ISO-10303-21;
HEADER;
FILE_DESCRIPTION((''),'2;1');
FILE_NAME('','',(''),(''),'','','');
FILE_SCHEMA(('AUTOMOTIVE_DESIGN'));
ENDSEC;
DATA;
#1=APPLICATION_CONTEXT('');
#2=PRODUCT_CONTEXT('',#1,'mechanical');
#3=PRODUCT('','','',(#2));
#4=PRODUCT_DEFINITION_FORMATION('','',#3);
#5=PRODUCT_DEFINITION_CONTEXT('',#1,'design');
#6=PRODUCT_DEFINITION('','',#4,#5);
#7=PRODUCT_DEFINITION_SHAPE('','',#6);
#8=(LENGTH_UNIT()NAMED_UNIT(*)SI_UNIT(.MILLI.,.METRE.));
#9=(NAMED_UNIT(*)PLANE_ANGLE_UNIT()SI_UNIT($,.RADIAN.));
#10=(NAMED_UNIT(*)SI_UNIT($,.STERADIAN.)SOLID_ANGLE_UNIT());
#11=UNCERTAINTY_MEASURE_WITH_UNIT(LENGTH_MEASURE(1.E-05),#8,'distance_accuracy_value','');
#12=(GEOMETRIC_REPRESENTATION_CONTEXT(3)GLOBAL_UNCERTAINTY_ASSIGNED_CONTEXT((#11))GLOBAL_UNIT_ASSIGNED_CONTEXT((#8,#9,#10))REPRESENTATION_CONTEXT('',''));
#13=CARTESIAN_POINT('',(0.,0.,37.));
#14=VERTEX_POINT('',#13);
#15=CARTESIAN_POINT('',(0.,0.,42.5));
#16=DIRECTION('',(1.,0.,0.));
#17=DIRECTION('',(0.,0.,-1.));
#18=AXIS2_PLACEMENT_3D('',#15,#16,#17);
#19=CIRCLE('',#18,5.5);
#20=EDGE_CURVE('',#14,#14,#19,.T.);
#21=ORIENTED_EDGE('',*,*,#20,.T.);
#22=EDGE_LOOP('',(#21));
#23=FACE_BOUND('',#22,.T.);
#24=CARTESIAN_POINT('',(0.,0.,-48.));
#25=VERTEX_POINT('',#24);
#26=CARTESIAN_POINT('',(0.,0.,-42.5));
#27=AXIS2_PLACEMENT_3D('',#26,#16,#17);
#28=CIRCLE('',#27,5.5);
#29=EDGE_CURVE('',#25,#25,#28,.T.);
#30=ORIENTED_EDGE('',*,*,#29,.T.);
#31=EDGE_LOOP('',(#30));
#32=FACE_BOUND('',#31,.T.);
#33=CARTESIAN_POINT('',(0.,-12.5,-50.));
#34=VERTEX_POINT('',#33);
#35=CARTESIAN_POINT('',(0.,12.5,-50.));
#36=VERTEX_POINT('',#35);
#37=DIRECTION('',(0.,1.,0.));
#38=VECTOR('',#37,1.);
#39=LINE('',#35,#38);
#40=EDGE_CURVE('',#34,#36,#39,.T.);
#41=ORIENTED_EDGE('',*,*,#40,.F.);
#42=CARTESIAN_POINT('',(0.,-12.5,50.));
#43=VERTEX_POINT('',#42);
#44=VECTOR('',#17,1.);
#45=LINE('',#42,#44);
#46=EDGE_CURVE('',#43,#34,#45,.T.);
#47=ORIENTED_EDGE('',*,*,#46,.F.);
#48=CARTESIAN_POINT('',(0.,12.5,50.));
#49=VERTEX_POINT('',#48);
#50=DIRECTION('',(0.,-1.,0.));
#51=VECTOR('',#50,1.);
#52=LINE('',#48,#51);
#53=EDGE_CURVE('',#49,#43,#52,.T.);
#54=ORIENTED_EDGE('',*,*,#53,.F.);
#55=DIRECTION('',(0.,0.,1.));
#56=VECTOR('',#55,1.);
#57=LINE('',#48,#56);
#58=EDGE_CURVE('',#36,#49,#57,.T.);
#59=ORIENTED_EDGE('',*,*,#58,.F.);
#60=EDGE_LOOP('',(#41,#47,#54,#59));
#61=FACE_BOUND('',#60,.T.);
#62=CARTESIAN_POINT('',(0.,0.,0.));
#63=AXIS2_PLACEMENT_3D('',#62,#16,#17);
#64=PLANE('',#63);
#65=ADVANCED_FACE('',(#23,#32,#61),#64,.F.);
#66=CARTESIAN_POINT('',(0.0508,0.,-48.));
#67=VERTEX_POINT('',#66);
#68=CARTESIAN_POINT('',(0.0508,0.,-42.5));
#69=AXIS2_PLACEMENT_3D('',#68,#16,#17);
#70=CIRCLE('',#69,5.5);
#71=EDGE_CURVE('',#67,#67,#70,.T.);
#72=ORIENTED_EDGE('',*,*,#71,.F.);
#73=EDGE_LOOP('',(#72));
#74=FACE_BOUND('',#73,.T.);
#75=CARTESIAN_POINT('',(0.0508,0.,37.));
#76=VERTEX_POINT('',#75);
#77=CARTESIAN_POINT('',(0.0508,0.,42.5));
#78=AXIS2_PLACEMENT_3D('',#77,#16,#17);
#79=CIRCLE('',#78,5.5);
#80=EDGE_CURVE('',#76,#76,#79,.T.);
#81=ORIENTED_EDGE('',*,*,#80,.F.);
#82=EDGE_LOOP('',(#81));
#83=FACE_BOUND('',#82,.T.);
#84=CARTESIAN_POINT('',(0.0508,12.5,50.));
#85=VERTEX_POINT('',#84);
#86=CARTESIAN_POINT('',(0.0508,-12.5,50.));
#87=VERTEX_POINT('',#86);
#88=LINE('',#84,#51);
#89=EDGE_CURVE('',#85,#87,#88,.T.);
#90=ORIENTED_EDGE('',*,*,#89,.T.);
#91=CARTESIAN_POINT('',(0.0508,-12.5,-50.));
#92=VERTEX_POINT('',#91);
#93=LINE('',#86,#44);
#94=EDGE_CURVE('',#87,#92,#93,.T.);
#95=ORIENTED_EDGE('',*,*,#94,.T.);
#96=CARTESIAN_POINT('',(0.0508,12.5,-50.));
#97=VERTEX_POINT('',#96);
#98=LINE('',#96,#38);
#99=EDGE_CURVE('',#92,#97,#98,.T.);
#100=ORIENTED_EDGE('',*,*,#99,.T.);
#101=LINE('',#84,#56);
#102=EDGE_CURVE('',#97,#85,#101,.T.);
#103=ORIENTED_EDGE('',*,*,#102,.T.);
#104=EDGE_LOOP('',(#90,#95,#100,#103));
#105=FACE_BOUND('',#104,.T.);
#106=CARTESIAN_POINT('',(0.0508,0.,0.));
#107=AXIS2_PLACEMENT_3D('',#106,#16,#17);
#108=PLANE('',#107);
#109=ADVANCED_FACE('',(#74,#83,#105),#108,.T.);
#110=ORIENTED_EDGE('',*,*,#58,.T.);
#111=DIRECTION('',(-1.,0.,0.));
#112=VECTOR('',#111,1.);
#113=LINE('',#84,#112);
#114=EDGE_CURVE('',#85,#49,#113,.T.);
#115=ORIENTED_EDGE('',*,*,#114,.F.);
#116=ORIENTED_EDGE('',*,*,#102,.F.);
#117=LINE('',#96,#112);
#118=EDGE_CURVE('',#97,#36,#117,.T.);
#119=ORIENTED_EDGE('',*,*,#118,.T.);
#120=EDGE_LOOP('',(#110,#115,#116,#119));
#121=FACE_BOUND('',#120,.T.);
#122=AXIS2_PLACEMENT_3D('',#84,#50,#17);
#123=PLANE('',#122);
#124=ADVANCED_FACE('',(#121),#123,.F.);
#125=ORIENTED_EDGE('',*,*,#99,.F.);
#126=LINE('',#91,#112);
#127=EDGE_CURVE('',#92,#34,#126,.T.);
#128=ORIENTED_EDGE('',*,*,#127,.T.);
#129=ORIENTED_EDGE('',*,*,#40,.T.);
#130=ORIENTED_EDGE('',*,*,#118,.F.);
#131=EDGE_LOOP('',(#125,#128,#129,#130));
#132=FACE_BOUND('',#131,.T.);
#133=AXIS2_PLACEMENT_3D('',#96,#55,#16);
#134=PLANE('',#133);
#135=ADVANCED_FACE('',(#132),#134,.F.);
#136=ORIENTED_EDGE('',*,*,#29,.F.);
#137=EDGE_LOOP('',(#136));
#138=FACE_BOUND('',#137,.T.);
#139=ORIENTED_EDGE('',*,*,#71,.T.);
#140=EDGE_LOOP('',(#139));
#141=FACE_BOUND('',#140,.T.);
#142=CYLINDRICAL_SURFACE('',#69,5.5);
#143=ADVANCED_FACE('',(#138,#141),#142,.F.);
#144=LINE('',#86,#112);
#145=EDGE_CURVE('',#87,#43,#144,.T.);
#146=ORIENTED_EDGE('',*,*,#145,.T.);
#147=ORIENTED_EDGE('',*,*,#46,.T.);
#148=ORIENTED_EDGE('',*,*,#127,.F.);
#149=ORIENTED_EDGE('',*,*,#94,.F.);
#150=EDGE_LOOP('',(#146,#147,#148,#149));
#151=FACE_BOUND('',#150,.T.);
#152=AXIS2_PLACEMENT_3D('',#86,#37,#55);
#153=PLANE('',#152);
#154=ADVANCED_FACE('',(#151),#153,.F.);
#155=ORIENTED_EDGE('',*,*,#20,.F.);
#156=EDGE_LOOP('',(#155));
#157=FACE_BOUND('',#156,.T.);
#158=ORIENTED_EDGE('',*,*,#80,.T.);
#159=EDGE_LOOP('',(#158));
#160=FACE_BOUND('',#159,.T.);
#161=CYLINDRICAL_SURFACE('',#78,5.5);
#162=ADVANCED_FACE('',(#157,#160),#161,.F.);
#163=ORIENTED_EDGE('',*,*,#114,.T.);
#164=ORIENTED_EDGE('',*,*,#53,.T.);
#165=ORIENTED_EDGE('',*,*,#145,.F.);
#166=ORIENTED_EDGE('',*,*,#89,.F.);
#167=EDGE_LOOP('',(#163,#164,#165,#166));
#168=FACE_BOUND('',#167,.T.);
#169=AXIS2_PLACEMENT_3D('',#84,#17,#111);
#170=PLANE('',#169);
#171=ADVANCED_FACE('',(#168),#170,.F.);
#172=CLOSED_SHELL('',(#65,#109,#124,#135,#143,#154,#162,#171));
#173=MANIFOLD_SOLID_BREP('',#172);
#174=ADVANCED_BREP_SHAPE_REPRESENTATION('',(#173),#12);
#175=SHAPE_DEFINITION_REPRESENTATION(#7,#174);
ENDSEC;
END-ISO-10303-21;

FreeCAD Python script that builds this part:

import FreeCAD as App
import Part
import Sketcher
from FreeCAD import Vector

doc = App.newDocument("Part")
body = doc.addObject("PartDesign::Body", "Body")

# Sketch on YZ plane
sketch1 = body.newObject("Sketcher::SketchObject", "Sketch")
sketch1.AttachmentSupport = (doc.getObject("YZ_Plane"), [""])
sketch1.MapMode = "FlatFace"
sketch1.addGeometry([
    Part.LineSegment(Vector(12, 50, 0), Vector(-12, 50, 0)),
    Part.LineSegment(Vector(-12, 50, 0), Vector(-12, -50, 0)),
    Part.LineSegment(Vector(-12, -50, 0), Vector(12, -50, 0)),
    Part.LineSegment(Vector(12, -50, 0), Vector(12, 50, 0)),
], False)
sketch1.addConstraint([
    Sketcher.Constraint("Coincident", 0, 2, 1, 1),
    Sketcher.Constraint("Coincident", 1, 2, 2, 1),
    Sketcher.Constraint("Coincident", 2, 2, 3, 1),
    Sketcher.Constraint("Coincident", 3, 2, 0, 1),
    Sketcher.Constraint("Horizontal", 0),
    Sketcher.Constraint("Vertical", 1),
    Sketcher.Constraint("Horizontal", 2),
    Sketcher.Constraint("Vertical", 3),
    Sketcher.Constraint("Symmetric", 0, 2, 2, 2, -1, 1),
    Sketcher.Constraint("DistanceX", 0, 2, 0, 1, 25.0),
    Sketcher.Constraint("DistanceY", 1, 2, 1, 1, 100.0),
])
pad1 = body.newObject("PartDesign::Pad", "Pad")
pad1.Profile = sketch1
pad1.Length = 0.0508

# Sketch on YZ plane
sketch2 = body.newObject("Sketcher::SketchObject", "Sketch001")
sketch2.AttachmentSupport = (doc.getObject("YZ_Plane"), [""])
sketch2.MapMode = "FlatFace"
sketch2.AttachmentOffset = App.Placement(Vector(0, 0, 0.0508), App.Rotation())
sketch2.addGeometry([
    Part.Circle(Vector(0, 42, 0), Vector(0, 0, 1), 6),
    Part.Circle(Vector(0, -42, 0), Vector(0, 0, 1), 6),
], False)
sketch2.addConstraint([
    Sketcher.Constraint("Equal", 0, 1),
    Sketcher.Constraint("Symmetric", 0, 3, 1, 3, -1, 1),
    Sketcher.Constraint("PointOnObject", 0, 3, -2),
    Sketcher.Constraint("Diameter", 0, 11.0),
    Sketcher.Constraint("DistanceY", 1, 3, 0, 3, 85.0),
])
doc.recompute()
hole = body.newObject("PartDesign::Hole", "Hole")
hole.Profile = sketch2
hole.ThreadType = "None"
hole.Diameter = 11
hole.DepthType = "ThroughAll"

doc.recompute()
